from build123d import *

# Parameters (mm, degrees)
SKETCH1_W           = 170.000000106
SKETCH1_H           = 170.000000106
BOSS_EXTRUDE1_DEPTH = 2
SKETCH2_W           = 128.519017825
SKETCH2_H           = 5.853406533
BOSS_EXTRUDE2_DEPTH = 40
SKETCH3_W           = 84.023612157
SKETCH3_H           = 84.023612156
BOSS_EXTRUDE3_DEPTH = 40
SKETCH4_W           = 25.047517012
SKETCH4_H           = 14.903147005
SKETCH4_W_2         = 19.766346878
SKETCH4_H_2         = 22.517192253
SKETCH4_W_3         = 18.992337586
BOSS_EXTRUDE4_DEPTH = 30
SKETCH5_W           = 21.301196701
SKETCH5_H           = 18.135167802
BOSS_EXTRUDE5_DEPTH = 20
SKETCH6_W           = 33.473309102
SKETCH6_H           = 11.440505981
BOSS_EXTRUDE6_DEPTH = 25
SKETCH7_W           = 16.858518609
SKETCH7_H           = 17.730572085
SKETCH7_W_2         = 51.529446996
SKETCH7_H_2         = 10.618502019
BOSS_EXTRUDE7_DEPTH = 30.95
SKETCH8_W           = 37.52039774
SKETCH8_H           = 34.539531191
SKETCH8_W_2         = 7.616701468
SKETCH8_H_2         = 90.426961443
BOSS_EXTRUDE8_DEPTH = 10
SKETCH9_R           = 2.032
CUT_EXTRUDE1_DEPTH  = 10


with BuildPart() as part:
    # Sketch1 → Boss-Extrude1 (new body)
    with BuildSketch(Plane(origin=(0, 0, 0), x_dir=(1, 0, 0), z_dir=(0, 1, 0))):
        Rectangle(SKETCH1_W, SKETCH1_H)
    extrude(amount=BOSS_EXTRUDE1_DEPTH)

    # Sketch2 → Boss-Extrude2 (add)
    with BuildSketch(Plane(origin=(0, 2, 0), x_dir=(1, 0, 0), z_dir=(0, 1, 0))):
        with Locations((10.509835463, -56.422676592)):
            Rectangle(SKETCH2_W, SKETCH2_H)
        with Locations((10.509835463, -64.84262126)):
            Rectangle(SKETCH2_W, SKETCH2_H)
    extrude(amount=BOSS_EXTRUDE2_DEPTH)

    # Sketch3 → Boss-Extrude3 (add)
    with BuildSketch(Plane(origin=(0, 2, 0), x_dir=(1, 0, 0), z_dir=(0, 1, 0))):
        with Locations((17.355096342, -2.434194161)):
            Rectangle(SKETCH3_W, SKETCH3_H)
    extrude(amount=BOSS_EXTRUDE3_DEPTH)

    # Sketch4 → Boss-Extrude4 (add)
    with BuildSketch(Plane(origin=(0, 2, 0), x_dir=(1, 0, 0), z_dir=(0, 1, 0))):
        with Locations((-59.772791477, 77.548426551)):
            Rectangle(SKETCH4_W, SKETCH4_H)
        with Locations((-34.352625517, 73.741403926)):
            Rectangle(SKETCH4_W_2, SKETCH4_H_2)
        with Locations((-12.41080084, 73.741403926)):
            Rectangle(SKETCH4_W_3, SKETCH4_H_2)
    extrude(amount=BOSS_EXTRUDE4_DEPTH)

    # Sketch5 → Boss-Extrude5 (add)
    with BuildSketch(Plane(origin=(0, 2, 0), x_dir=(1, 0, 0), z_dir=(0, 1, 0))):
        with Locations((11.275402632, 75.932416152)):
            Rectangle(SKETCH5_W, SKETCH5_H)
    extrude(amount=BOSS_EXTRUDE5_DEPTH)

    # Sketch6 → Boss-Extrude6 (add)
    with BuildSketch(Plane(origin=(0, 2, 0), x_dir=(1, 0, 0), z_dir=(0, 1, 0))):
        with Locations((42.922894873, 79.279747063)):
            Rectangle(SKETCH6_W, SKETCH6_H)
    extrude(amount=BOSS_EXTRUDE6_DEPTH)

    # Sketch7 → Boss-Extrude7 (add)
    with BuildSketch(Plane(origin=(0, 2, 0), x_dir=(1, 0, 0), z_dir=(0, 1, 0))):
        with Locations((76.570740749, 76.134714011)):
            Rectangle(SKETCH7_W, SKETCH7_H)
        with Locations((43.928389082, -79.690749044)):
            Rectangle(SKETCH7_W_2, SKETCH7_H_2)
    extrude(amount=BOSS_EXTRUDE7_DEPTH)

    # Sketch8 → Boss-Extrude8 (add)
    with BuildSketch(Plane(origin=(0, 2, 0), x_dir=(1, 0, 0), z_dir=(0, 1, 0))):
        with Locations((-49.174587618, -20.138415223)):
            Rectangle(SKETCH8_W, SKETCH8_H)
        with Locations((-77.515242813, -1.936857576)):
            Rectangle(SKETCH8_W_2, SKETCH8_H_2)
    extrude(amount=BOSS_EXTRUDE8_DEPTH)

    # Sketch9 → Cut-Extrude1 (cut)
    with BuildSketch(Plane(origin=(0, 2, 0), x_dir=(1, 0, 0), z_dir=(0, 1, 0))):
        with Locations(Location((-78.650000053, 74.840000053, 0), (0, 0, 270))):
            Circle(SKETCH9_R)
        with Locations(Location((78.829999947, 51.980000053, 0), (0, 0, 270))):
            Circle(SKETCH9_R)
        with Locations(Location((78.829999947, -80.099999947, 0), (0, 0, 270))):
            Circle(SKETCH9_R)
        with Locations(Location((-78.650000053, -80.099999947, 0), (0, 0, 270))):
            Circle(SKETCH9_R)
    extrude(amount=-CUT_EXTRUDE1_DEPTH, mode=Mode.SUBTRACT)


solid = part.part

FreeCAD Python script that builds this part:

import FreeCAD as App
import Part
import Sketcher

V = App.Vector
Q = App.Units.Quantity


def add_polygon(sketch, points):
    """Adds a closed chain of lines whose ends are joined by coincident constraints."""
    first, n = sketch.GeometryCount, len(points)
    for a, b in zip(points, points[1:] + points[:1]):
        sketch.addGeometry(Part.LineSegment(App.Vector(*a, 0), App.Vector(*b, 0)), False)
    for i in range(n):
        sketch.addConstraint(Sketcher.Constraint("Coincident", first + i, 2, first + (i + 1) % n, 1))

doc = App.newDocument("Part")
body = doc.addObject("PartDesign::Body", "Body")

# Sketch on XZ plane
sketch1 = body.newObject("Sketcher::SketchObject", "Sketch")
sketch1.AttachmentSupport = (doc.getObject("XZ_Plane"), [""])
sketch1.MapMode = "FlatFace"
add_polygon(sketch1, [(-85, -85), (-85, 85), (85, 85), (85, -85)])  # lines 0-3
sketch1.addConstraint(Sketcher.Constraint("Vertical", 0))
sketch1.addConstraint(Sketcher.Constraint("Horizontal", 1))
sketch1.addConstraint(Sketcher.Constraint("Vertical", 2))
sketch1.addConstraint(Sketcher.Constraint("Horizontal", 3))
sketch1.addConstraint(Sketcher.Constraint("Symmetric", 0, 2, 2, 2, -1, 1))
sketch1.addConstraint(Sketcher.Constraint("Equal", 3, 0))
sketch1.addConstraint(Sketcher.Constraint("DistanceX", 1, 1, 1, 2, Q("170 mm")))
pad1 = body.newObject("PartDesign::Pad", "Pad")
pad1.Profile = sketch1
pad1.Length = 2
pad1.Reversed = True

# Sketch on XZ plane
sketch2 = body.newObject("Sketcher::SketchObject", "Sketch001")
sketch2.AttachmentSupport = (doc.getObject("XZ_Plane"), [""])
sketch2.MapMode = "FlatFace"
sketch2.AttachmentOffset = App.Placement(V(0, 0, -2), App.Rotation())
add_polygon(sketch2, [(-53.749673, 53.495973), (-53.749673, 59.34938), (74.769344, 59.34938), (74.769344, 53.495973)])  # lines 0-3
add_polygon(sketch2, [(-53.749673, 61.915918), (-53.749673, 67.769325), (74.769344, 67.769325), (74.769344, 61.915918)])  # lines 4-7
sketch2.addConstraint(Sketcher.Constraint("Vertical", 0))
sketch2.addConstraint(Sketcher.Constraint("Horizontal", 1))
sketch2.addConstraint(Sketcher.Constraint("Vertical", 2))
sketch2.addConstraint(Sketcher.Constraint("Horizontal", 3))
sketch2.addConstraint(Sketcher.Constraint("Vertical", 4))
sketch2.addConstraint(Sketcher.Constraint("Horizontal", 5))
sketch2.addConstraint(Sketcher.Constraint("Vertical", 6))
sketch2.addConstraint(Sketcher.Constraint("Horizontal", 7))
sketch2.addConstraint(Sketcher.Constraint("Vertical", 3, 2, 4, 2))
sketch2.addConstraint(Sketcher.Constraint("Vertical", 2, 2, 5, 2))
sketch2.addConstraint(Sketcher.Constraint("Equal", 2, 4))
sketch2.addConstraint(Sketcher.Constraint("DistanceX", 1, 1, 1, 2, Q("128.519018 mm")))
sketch2.addConstraint(Sketcher.Constraint("DistanceY", 0, 1, 0, 2, Q("5.853407 mm")))
sketch2.addConstraint(Sketcher.Constraint("DistanceY", -1, 1, 0, 2, Q("59.34938 mm")))
sketch2.addConstraint(Sketcher.Constraint("DistanceY", 3, 2, 4, 2, Q("14.273351 mm")))
sketch2.addConstraint(Sketcher.Constraint("DistanceX", 0, 2, -1, 1, Q("53.749673 mm")))
pad2 = body.newObject("PartDesign::Pad", "Pad001")
pad2.Profile = sketch2
pad2.Length = 40
pad2.Reversed = True

# Sketch on XZ plane
sketch3 = body.newObject("Sketcher::SketchObject", "Sketch002")
sketch3.AttachmentSupport = (doc.getObject("XZ_Plane"), [""])
sketch3.MapMode = "FlatFace"
sketch3.AttachmentOffset = App.Placement(V(0, 0, -2), App.Rotation())
add_polygon(sketch3, [(-24.65671, -39.577612), (-24.65671, 44.446), (59.366902, 44.446), (59.366902, -39.577612)])  # lines 0-3
sketch3.addConstraint(Sketcher.Constraint("Vertical", 0))
sketch3.addConstraint(Sketcher.Constraint("Horizontal", 1))
sketch3.addConstraint(Sketcher.Constraint("Vertical", 2))
sketch3.addConstraint(Sketcher.Constraint("Horizontal", 3))
sketch3.addConstraint(Sketcher.Constraint("Equal", 3, 0))
sketch3.addConstraint(Sketcher.Constraint("DistanceY", -1, 1, 0, 2, Q("44.446 mm")))
sketch3.addConstraint(Sketcher.Constraint("DistanceX", 1, 1, 1, 2, Q("84.023612 mm")))
sketch3.addConstraint(Sketcher.Constraint("DistanceX", 0, 2, -1, 1, Q("24.65671 mm")))
pad3 = body.newObject("PartDesign::Pad", "Pad002")
pad3.Profile = sketch3
pad3.Length = 40
pad3.Reversed = True

# Sketch on XZ plane
sketch4 = body.newObject("Sketcher::SketchObject", "Sketch003")
sketch4.AttachmentSupport = (doc.getObject("XZ_Plane"), [""])
sketch4.MapMode = "FlatFace"
sketch4.AttachmentOffset = App.Placement(V(0, 0, -2), App.Rotation())
add_polygon(sketch4, [(-72.29655, -85), (-72.29655, -70.096853), (-47.249033, -70.096853), (-47.249033, -85)])  # lines 0-3
add_polygon(sketch4, [(-44.235799, -85), (-44.235799, -62.482808), (-24.469452, -62.482808), (-24.469452, -85)])  # lines 4-7
add_polygon(sketch4, [(-21.90697, -85), (-21.90697, -62.482808), (-2.914632, -62.482808), (-2.914632, -85)])  # lines 8-11
sketch4.addConstraint(Sketcher.Constraint("Vertical", 0))
sketch4.addConstraint(Sketcher.Constraint("Horizontal", 1))
sketch4.addConstraint(Sketcher.Constraint("Vertical", 2))
sketch4.addConstraint(Sketcher.Constraint("Horizontal", 3))
sketch4.addConstraint(Sketcher.Constraint("Vertical", 4))
sketch4.addConstraint(Sketcher.Constraint("Horizontal", 5))
sketch4.addConstraint(Sketcher.Constraint("Vertical", 6))
sketch4.addConstraint(Sketcher.Constraint("Horizontal", 7))
sketch4.addConstraint(Sketcher.Constraint("Vertical", 8))
sketch4.addConstraint(Sketcher.Constraint("Horizontal", 9))
sketch4.addConstraint(Sketcher.Constraint("Vertical", 10))
sketch4.addConstraint(Sketcher.Constraint("Horizontal", 11))
sketch4.addConstraint(Sketcher.Constraint("Horizontal", 3, 2, 6, 2))
sketch4.addConstraint(Sketcher.Constraint("Horizontal", 5, 2, 8, 2))
sketch4.addConstraint(Sketcher.Constraint("Horizontal", 7, 2, 10, 2))
sketch4.addConstraint(Sketcher.Constraint("DistanceY", 2, 2, -1, 1, Q("85 mm")))
sketch4.addConstraint(Sketcher.Constraint("DistanceX", 4, 2, -1, 1, Q("44.235799 mm")))
sketch4.addConstraint(Sketcher.Constraint("DistanceX", 1, 2, 9, 2, Q("44.334401 mm")))
sketch4.addConstraint(Sketcher.Constraint("DistanceX", 1, 1, 1, 2, Q("25.047517 mm")))
sketch4.addConstraint(Sketcher.Constraint("DistanceX", 5, 1, 5, 2, Q("19.766347 mm")))
sketch4.addConstraint(Sketcher.Constraint("DistanceX", 9, 1, 9, 2, Q("18.992338 mm")))
sketch4.addConstraint(Sketcher.Constraint("DistanceY", 0, 1, 0, 2, Q("14.903147 mm")))
sketch4.addConstraint(Sketcher.Constraint("DistanceY", 4, 1, 4, 2, Q("22.517192 mm")))
sketch4.addConstraint(Sketcher.Constraint("DistanceX", 0, 2, -1, 1, Q("72.29655 mm")))
pad4 = body.newObject("PartDesign::Pad", "Pad003")
pad4.Profile = sketch4
pad4.Length = 30
pad4.Reversed = True

# Sketch on XZ plane
sketch5 = body.newObject("Sketcher::SketchObject", "Sketch004")
sketch5.AttachmentSupport = (doc.getObject("XZ_Plane"), [""])
sketch5.MapMode = "FlatFace"
sketch5.AttachmentOffset = App.Placement(V(0, 0, -2), App.Rotation())
add_polygon(sketch5, [(0.624804, -85), (0.624804, -66.864832), (21.926001, -66.864832), (21.926001, -85)])  # lines 0-3
sketch5.addConstraint(Sketcher.Constraint("Vertical", 0))
sketch5.addConstraint(Sketcher.Constraint("Horizontal", 1))
sketch5.addConstraint(Sketcher.Constraint("Vertical", 2))
sketch5.addConstraint(Sketcher.Constraint("Horizontal", 3))
sketch5.addConstraint(Sketcher.Constraint("DistanceY", 2, 2, -1, 1, Q("85 mm")))
sketch5.addConstraint(Sketcher.Constraint("DistanceX", -1, 1, 1, 2, Q("21.926001 mm")))
sketch5.addConstraint(Sketcher.Constraint("DistanceX", 1, 1, 1, 2, Q("21.301197 mm")))
sketch5.addConstraint(Sketcher.Constraint("DistanceY", 0, 1, 0, 2, Q("18.135168 mm")))
pad5 = body.newObject("PartDesign::Pad", "Pad004")
pad5.Profile = sketch5
pad5.Length = 20
pad5.Reversed = True

# Sketch on XZ plane
sketch6 = body.newObject("Sketcher::SketchObject", "Sketch005")
sketch6.AttachmentSupport = (doc.getObject("XZ_Plane"), [""])
sketch6.MapMode = "FlatFace"
sketch6.AttachmentOffset = App.Placement(V(0, 0, -2), App.Rotation())
add_polygon(sketch6, [(26.18624, -85), (26.18624, -73.559494), (59.659549, -73.559494), (59.659549, -85)])  # lines 0-3
sketch6.addConstraint(Sketcher.Constraint("Vertical", 0))
sketch6.addConstraint(Sketcher.Constraint("Horizontal", 1))
sketch6.addConstraint(Sketcher.Constraint("Vertical", 2))
sketch6.addConstraint(Sketcher.Constraint("Horizontal", 3))
sketch6.addConstraint(Sketcher.Constraint("DistanceY", 2, 2, -1, 1, Q("85 mm")))
sketch6.addConstraint(Sketcher.Constraint("DistanceX", 1, 1, 1, 2, Q("33.473309 mm")))
sketch6.addConstraint(Sketcher.Constraint("DistanceY", 0, 1, 0, 2, Q("11.440506 mm")))
sketch6.addConstraint(Sketcher.Constraint("DistanceX", -1, 1, 0, 2, Q("26.18624 mm")))
pad6 = body.newObject("PartDesign::Pad", "Pad005")
pad6.Profile = sketch6
pad6.Length = 25
pad6.Reversed = True

# Sketch on XZ plane
sketch7 = body.newObject("Sketcher::SketchObject", "Sketch006")
sketch7.AttachmentSupport = (doc.getObject("XZ_Plane"), [""])
sketch7.MapMode = "FlatFace"
sketch7.AttachmentOffset = App.Placement(V(0, 0, -2), App.Rotation())
add_polygon(sketch7, [(68.141481, -85), (68.141481, -67.269428), (85, -67.269428), (85, -85)])  # lines 0-3
add_polygon(sketch7, [(18.163666, 74.381498), (18.163666, 85), (69.693113, 85), (69.693113, 74.381498)])  # lines 4-7
sketch7.addConstraint(Sketcher.Constraint("Vertical", 0))
sketch7.addConstraint(Sketcher.Constraint("Horizontal", 1))
sketch7.addConstraint(Sketcher.Constraint("Vertical", 2))
sketch7.addConstraint(Sketcher.Constraint("Horizontal", 3))
sketch7.addConstraint(Sketcher.Constraint("Vertical", 4))
sketch7.addConstraint(Sketcher.Constraint("Horizontal", 5))
sketch7.addConstraint(Sketcher.Constraint("Vertical", 6))
sketch7.addConstraint(Sketcher.Constraint("Horizontal", 7))
sketch7.addConstraint(Sketcher.Constraint("DistanceX", -1, 1, 1, 2, Q("85 mm")))
sketch7.addConstraint(Sketcher.Constraint("DistanceY", 2, 2, -1, 1, Q("85 mm")))
sketch7.addConstraint(Sketcher.Constraint("DistanceY", -1, 1, 4, 2, Q("85 mm")))
sketch7.addConstraint(Sketcher.Constraint("DistanceX", 1, 1, 1, 2, Q("16.858519 mm")))
sketch7.addConstraint(Sketcher.Constraint("DistanceY", -1, 1, 6, 2, Q("74.381498 mm")))
sketch7.addConstraint(Sketcher.Constraint("DistanceX", 5, 1, 5, 2, Q("51.529447 mm")))
sketch7.addConstraint(Sketcher.Constraint("DistanceY", 0, 1, 0, 2, Q("17.730572 mm")))
sketch7.addConstraint(Sketcher.Constraint("DistanceX", 0, 2, 5, 2, Q("1.551631 mm")))
pad7 = body.newObject("PartDesign::Pad", "Pad006")
pad7.Profile = sketch7
pad7.Length = 30.95
pad7.Reversed = True

# Sketch on XZ plane
sketch8 = body.newObject("Sketcher::SketchObject", "Sketch007")
sketch8.AttachmentSupport = (doc.getObject("XZ_Plane"), [""])
sketch8.MapMode = "FlatFace"
sketch8.AttachmentOffset = App.Placement(V(0, 0, -2), App.Rotation())
add_polygon(sketch8, [(-67.934786, 2.86865), (-67.934786, 37.408181), (-30.414389, 37.408181), (-30.414389, 2.86865)])  # lines 0-3
add_polygon(sketch8, [(-81.323594, -43.276623), (-81.323594, 47.150338), (-73.706892, 47.150338), (-73.706892, -43.276623)])  # lines 4-7
sketch8.addConstraint(Sketcher.Constraint("Vertical", 0))
sketch8.addConstraint(Sketcher.Constraint("Horizontal", 1))
sketch8.addConstraint(Sketcher.Constraint("Vertical", 2))
sketch8.addConstraint(Sketcher.Constraint("Horizontal", 3))
sketch8.addConstraint(Sketcher.Constraint("Vertical", 4))
sketch8.addConstraint(Sketcher.Constraint("Horizontal", 5))
sketch8.addConstraint(Sketcher.Constraint("Vertical", 6))
sketch8.addConstraint(Sketcher.Constraint("Horizontal", 7))
sketch8.addConstraint(Sketcher.Constraint("DistanceX", 5, 1, 5, 2, Q("7.616701 mm")))
sketch8.addConstraint(Sketcher.Constraint("DistanceY", 0, 1, 0, 2, Q("34.539531 mm")))
sketch8.addConstraint(Sketcher.Constraint("DistanceY", 4, 1, 4, 2, Q("90.426961 mm")))
sketch8.addConstraint(Sketcher.Constraint("DistanceX", 1, 1, 1, 2, Q("37.520398 mm")))
sketch8.addConstraint(Sketcher.Constraint("DistanceY", -1, 1, 0, 2, Q("37.408181 mm")))
sketch8.addConstraint(Sketcher.Constraint("DistanceX", 1, 2, -1, 1, Q("30.414389 mm")))
sketch8.addConstraint(Sketcher.Constraint("DistanceY", -1, 1, 4, 2, Q("47.150338 mm")))
sketch8.addConstraint(Sketcher.Constraint("DistanceX", 4, 2, -1, 1, Q("81.323594 mm")))
pad8 = body.newObject("PartDesign::Pad", "Pad007")
pad8.Profile = sketch8
pad8.Length = 10
pad8.Reversed = True

# Sketch on XZ plane
sketch9 = body.newObject("Sketcher::SketchObject", "Sketch008")
sketch9.AttachmentSupport = (doc.getObject("XZ_Plane"), [""])
sketch9.MapMode = "FlatFace"
sketch9.AttachmentOffset = App.Placement(V(0, 0, -2), App.Rotation())
sketch9.addGeometry(Part.Circle(V(-78.65, -74.84, 0), V(0, 0, 1), 2.032), False)
sketch9.addGeometry(Part.Circle(V(78.83, -51.98, 0), V(0, 0, 1), 2.032), False)
sketch9.addGeometry(Part.Circle(V(78.83, 80.1, 0), V(0, 0, 1), 2.032), False)
sketch9.addGeometry(Part.Circle(V(-78.65, 80.1, 0), V(0, 0, 1), 2.032), False)
sketch9.addConstraint(Sketcher.Constraint("Equal", 0, 1))
sketch9.addConstraint(Sketcher.Constraint("Equal", 1, 2))
sketch9.addConstraint(Sketcher.Constraint("Equal", 2, 3))
sketch9.addConstraint(Sketcher.Constraint("Horizontal", 2, 3, 3, 3))
sketch9.addConstraint(Sketcher.Constraint("Vertical", 1, 3, 2, 3))
sketch9.addConstraint(Sketcher.Constraint("Vertical", 0, 3, 3, 3))
sketch9.addConstraint(Sketcher.Constraint("Diameter", 0, Q("4.064 mm")))
sketch9.addConstraint(Sketcher.Constraint("DistanceY", -1, 1, 2, 3, Q("80.1 mm")))
sketch9.addConstraint(Sketcher.Constraint("DistanceX", 0, 3, -1, 1, Q("78.65 mm")))
sketch9.addConstraint(Sketcher.Constraint("DistanceY", 0, 3, -1, 1, Q("74.84 mm")))
sketch9.addConstraint(Sketcher.Constraint("DistanceX", -1, 1, 1, 3, Q("78.83 mm")))
sketch9.addConstraint(Sketcher.Constraint("DistanceY", 1, 3, -1, 1, Q("51.98 mm")))
pocket1 = body.newObject("PartDesign::Pocket", "Pocket")
pocket1.Profile = sketch9
pocket1.Length = 10
pocket1.Reversed = True

doc.recompute()
